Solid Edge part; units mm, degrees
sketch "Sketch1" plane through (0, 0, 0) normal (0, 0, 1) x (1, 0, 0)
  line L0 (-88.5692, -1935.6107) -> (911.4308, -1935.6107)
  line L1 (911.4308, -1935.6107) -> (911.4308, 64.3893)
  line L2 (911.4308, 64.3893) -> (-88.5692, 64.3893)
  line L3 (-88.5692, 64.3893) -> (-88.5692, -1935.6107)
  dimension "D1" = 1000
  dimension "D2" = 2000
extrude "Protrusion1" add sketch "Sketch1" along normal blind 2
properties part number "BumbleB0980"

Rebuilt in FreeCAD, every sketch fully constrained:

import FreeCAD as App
import Part
import Sketcher
from FreeCAD import Vector
Q = App.Units.Quantity


def add_polygon(sketch, points):
    """Adds a closed chain of lines whose ends are joined by coincident constraints."""
    first, n = sketch.GeometryCount, len(points)
    for a, b in zip(points, points[1:] + points[:1]):
        sketch.addGeometry(Part.LineSegment(App.Vector(*a, 0), App.Vector(*b, 0)), False)
    for i in range(n):
        sketch.addConstraint(Sketcher.Constraint("Coincident", first + i, 2, first + (i + 1) % n, 1))

doc = App.newDocument("Part")
body = doc.addObject("PartDesign::Body", "Body")

sketch1 = body.newObject("Sketcher::SketchObject", "Sketch")
sketch1.AttachmentSupport = (doc.getObject("XY_Plane"), [""])
sketch1.MapMode = "FlatFace"
add_polygon(sketch1, [(-89, 64), (-89, -1936), (911, -1936), (911, 64)])
sketch1.addConstraint([
    Sketcher.Constraint("Vertical", 0),
    Sketcher.Constraint("Horizontal", 1),
    Sketcher.Constraint("Vertical", 2),
    Sketcher.Constraint("Horizontal", 3),
    Sketcher.Constraint("DistanceX", 1, 1, 1, 2, Q("1000 mm")),
    Sketcher.Constraint("DistanceY", 0, 2, 0, 1, Q("2000 mm")),
    Sketcher.Constraint("DistanceX", 0, 2, -1, 1, Q("88.5692 mm")),
    Sketcher.Constraint("DistanceY", 0, 2, -1, 1, Q("1935.6107 mm")),
])
pad1 = body.newObject("PartDesign::Pad", "Pad")
pad1.Profile = sketch1
pad1.Length = 2

doc.recompute()
